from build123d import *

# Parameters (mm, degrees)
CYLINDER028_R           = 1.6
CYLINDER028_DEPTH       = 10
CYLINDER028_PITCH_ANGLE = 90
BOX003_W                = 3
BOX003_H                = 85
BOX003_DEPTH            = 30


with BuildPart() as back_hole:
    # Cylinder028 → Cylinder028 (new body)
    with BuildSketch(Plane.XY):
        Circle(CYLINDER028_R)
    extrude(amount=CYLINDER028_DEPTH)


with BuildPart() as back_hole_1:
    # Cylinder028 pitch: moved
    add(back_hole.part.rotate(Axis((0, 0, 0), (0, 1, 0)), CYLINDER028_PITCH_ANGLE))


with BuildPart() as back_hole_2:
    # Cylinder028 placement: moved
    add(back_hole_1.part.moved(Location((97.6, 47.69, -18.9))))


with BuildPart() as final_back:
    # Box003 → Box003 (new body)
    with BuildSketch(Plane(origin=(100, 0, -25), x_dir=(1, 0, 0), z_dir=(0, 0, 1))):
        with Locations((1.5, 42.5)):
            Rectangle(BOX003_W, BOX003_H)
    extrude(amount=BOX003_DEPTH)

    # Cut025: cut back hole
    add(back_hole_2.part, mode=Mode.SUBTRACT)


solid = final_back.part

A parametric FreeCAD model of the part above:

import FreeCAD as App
import Part
import Sketcher
Q = App.Units.Quantity

doc = App.newDocument("Part")
params = doc.addObject("Spreadsheet::Sheet", "Params")
for row, (alias, value) in enumerate([
    ("sketch1_diameter", "3.2 mm"),
    ("pad1_length", "10 mm"),
    ("sketch2_width", "3 mm"),
    ("sketch2_height", "85 mm"),
    ("pad2_length", "30 mm"),
], start=1):
    params.set(f"A{row}", alias)
    params.set(f"B{row}", "=" + value)
    params.setAlias(f"B{row}", alias)

body = doc.addObject("PartDesign::Body", "Body")

sketch1 = doc.addObject("Sketcher::SketchObject", "Sketch")
body.addObject(sketch1)
sketch1.AttachmentSupport = (doc.XY_Plane, [""])
sketch1.MapMode = "FlatFace"
sketch1.addGeometry(Part.Circle(App.Vector(0, 0, 0), App.Vector(0, 0, 1), 1.6), False)
sketch1.addConstraint(Sketcher.Constraint("Coincident", 0, 3, -1, 1))
sketch1.addConstraint(Sketcher.Constraint("Diameter", 0, Q("3.2 mm")))
sketch1.setExpression("Constraints[1]", "Params.sketch1_diameter")
pad1 = doc.addObject("PartDesign::Pad", "Pad")
body.addObject(pad1)
pad1.Profile = sketch1
pad1.setExpression("Length", "Params.pad1_length")
body2 = doc.addObject("PartDesign::Body", "Body001")
doc.recompute()

body.Placement = App.Placement(App.Vector(0, 0, 0), App.Rotation(App.Vector(0, 1, 0), 90))
boolean = doc.addObject("PartDesign::Boolean", "Boolean")
body2.addObject(boolean)
boolean.Type = "Fuse"
boolean.addObjects([body])
body3 = doc.addObject("PartDesign::Body", "Body002")
doc.recompute()

body2.Placement = App.Placement(App.Vector(97.6, 47.69, -18.9), App.Rotation(App.Vector(0, 0, 1), 0))
boolean2 = doc.addObject("PartDesign::Boolean", "Boolean001")
body3.addObject(boolean2)
boolean2.Type = "Fuse"
boolean2.addObjects([body2])
body4 = doc.addObject("PartDesign::Body", "Body003")

sketch2 = doc.addObject("Sketcher::SketchObject", "Sketch001")
body4.addObject(sketch2)
sketch2.AttachmentSupport = (doc.getObject("XY_Plane003"), [""])
sketch2.MapMode = "FlatFace"
sketch2.AttachmentOffset = App.Placement(App.Vector(0, 0, -25), App.Rotation())
sketch2.addGeometry(Part.LineSegment(App.Vector(100, 85, 0), App.Vector(100, 0, 0)), False)
sketch2.addGeometry(Part.LineSegment(App.Vector(100, 0, 0), App.Vector(103, 0, 0)), False)
sketch2.addGeometry(Part.LineSegment(App.Vector(103, 0, 0), App.Vector(103, 85, 0)), False)
sketch2.addGeometry(Part.LineSegment(App.Vector(103, 85, 0), App.Vector(100, 85, 0)), False)
sketch2.addConstraint(Sketcher.Constraint("Coincident", 0, 2, 1, 1))
sketch2.addConstraint(Sketcher.Constraint("Coincident", 1, 2, 2, 1))
sketch2.addConstraint(Sketcher.Constraint("Coincident", 2, 2, 3, 1))
sketch2.addConstraint(Sketcher.Constraint("Coincident", 3, 2, 0, 1))
sketch2.addConstraint(Sketcher.Constraint("Vertical", 0))
sketch2.addConstraint(Sketcher.Constraint("Horizontal", 1))
sketch2.addConstraint(Sketcher.Constraint("Vertical", 2))
sketch2.addConstraint(Sketcher.Constraint("Horizontal", 3))
sketch2.addConstraint(Sketcher.Constraint("PointOnObject", 0, 2, -1))
sketch2.addConstraint(Sketcher.Constraint("DistanceX", 1, 1, 1, 2, Q("3 mm")))
sketch2.addConstraint(Sketcher.Constraint("DistanceY", 0, 2, 0, 1, Q("85 mm")))
sketch2.addConstraint(Sketcher.Constraint("DistanceX", -1, 1, 0, 2, Q("100 mm")))
sketch2.setExpression("Constraints[9]", "Params.sketch2_width")
sketch2.setExpression("Constraints[10]", "Params.sketch2_height")
pad2 = doc.addObject("PartDesign::Pad", "Pad001")
body4.addObject(pad2)
pad2.Profile = sketch2
pad2.setExpression("Length", "Params.pad2_length")
doc.recompute()

boolean3 = doc.addObject("PartDesign::Boolean", "Boolean002")
body4.addObject(boolean3)
boolean3.Type = "Cut"
boolean3.addObjects([body3])

doc.recompute()
